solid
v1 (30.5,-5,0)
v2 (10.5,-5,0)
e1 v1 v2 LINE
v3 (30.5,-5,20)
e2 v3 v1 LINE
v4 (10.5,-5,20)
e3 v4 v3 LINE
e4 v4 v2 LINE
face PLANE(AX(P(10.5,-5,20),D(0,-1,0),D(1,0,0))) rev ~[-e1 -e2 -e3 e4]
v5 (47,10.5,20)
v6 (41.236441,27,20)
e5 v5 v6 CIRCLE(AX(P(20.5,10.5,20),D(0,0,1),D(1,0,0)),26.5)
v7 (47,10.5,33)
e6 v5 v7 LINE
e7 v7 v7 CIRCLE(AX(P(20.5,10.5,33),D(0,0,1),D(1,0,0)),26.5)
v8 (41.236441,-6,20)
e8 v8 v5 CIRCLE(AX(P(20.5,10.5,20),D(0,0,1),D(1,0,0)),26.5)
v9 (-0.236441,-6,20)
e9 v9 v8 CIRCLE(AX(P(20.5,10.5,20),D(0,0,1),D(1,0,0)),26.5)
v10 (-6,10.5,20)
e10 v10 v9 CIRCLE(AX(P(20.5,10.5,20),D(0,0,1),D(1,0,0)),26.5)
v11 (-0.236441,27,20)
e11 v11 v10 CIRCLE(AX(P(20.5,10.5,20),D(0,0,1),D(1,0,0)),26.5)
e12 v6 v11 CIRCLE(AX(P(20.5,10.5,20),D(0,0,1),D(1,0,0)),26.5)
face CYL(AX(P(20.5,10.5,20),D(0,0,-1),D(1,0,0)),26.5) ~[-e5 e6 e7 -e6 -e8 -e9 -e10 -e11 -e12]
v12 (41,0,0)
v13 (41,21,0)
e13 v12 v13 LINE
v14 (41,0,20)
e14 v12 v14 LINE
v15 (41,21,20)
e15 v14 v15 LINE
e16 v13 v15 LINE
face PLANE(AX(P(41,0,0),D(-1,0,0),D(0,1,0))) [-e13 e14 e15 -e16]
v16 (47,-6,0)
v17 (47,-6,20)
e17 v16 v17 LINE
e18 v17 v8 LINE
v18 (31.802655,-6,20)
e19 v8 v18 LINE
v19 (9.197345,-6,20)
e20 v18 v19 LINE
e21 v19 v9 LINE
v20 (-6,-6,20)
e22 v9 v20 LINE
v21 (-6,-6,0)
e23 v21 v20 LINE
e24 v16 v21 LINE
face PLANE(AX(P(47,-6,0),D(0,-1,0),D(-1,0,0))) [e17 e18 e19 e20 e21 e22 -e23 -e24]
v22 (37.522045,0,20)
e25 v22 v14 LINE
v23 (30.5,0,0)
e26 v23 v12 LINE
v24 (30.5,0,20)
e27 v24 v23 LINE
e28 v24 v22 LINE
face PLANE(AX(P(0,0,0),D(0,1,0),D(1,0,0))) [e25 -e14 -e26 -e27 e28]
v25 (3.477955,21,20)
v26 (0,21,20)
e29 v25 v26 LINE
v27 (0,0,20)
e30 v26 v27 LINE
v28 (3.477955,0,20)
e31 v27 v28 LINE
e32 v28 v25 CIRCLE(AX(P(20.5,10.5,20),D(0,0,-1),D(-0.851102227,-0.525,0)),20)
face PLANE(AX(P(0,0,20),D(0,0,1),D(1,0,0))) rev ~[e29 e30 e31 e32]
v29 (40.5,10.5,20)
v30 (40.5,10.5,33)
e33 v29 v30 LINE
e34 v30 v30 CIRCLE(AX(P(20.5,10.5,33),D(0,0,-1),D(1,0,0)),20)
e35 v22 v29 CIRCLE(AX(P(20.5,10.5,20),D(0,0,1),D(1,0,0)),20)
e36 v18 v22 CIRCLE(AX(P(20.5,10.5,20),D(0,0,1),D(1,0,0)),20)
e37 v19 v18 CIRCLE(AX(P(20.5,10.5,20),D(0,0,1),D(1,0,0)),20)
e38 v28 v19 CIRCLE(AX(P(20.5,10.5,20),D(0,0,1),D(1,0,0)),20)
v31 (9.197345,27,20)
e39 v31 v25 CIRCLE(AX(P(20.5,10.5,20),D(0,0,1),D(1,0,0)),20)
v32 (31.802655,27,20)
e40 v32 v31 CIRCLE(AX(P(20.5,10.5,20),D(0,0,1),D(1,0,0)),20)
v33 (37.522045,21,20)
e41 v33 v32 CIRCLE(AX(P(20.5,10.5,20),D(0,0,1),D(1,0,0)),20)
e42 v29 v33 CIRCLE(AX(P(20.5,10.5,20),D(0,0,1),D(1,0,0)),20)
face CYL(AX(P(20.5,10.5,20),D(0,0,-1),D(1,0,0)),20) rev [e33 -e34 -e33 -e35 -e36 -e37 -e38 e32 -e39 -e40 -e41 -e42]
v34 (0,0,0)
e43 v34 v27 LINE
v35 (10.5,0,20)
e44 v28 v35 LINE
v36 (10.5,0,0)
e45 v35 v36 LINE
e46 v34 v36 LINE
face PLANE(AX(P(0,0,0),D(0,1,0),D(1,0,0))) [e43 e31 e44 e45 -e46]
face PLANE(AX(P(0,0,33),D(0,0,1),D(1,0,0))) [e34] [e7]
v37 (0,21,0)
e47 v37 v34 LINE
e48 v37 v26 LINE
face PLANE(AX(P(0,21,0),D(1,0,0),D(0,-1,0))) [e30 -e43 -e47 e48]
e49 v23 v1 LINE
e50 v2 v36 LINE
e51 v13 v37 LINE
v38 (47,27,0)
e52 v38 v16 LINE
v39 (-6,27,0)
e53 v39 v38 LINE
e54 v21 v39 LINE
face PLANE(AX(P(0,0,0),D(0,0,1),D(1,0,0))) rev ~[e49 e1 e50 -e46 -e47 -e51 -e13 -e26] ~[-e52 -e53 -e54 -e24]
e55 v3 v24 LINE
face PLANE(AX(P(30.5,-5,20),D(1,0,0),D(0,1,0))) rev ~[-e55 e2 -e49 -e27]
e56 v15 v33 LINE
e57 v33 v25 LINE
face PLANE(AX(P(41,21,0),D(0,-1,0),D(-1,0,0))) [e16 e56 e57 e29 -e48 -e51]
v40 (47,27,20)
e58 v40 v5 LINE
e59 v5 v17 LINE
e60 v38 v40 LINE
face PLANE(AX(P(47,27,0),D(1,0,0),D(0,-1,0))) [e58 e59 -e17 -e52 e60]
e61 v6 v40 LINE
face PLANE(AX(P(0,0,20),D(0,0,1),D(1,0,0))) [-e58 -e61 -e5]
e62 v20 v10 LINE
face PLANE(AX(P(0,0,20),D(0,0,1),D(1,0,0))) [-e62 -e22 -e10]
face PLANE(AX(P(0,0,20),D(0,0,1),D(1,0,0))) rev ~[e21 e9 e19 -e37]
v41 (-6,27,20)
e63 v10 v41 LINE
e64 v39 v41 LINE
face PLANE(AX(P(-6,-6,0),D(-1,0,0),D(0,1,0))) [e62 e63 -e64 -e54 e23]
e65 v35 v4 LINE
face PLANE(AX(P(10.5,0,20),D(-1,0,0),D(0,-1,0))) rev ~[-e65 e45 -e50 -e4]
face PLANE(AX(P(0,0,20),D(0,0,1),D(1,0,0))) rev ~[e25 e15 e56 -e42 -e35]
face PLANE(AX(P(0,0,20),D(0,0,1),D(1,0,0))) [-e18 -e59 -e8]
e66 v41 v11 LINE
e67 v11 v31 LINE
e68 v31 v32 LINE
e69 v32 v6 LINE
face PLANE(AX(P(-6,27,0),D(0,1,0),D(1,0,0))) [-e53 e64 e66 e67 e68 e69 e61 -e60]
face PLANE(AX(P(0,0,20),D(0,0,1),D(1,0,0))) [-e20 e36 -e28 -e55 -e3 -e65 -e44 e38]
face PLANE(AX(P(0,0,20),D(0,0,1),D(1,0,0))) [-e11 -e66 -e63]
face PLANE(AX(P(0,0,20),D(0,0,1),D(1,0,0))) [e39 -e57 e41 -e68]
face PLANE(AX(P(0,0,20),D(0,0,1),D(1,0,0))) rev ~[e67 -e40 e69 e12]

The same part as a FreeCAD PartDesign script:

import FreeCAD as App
import Part
import Sketcher
Q = App.Units.Quantity

doc = App.newDocument("Part")
params = doc.addObject("Spreadsheet::Sheet", "Params")
for row, (alias, value) in enumerate([
    ("sketch1_width", "41 mm"),
    ("sketch1_height", "21 mm"),
    ("pad1_length", "20 mm"),
    ("sketch2_width", "20 mm"),
    ("sketch2_height", "5 mm"),
    ("sketch3_diameter", "40 mm"),
    ("sketch3_diameter2", "53 mm"),
    ("pad2_length", "13 mm"),
], start=1):
    params.set(f"A{row}", alias)
    params.set(f"B{row}", "=" + value)
    params.setAlias(f"B{row}", alias)

body = doc.addObject("PartDesign::Body", "Body")

# Sketch on XY plane
sketch1 = body.newObject("Sketcher::SketchObject", "Sketch")
sketch1.AttachmentSupport = (doc.getObject("XY_Plane"), [""])
sketch1.MapMode = "FlatFace"
sketch1.addGeometry(Part.LineSegment(App.Vector(47, 27, 0), App.Vector(-6, 27, 0)), False)
sketch1.addGeometry(Part.LineSegment(App.Vector(-6, 27, 0), App.Vector(-6, -6, 0)), False)
sketch1.addGeometry(Part.LineSegment(App.Vector(-6, -6, 0), App.Vector(47, -6, 0)), False)
sketch1.addGeometry(Part.LineSegment(App.Vector(47, -6, 0), App.Vector(47, 27, 0)), False)
sketch1.addGeometry(Part.LineSegment(App.Vector(41, 0, 0), App.Vector(0, 0, 0)), False)
sketch1.addGeometry(Part.LineSegment(App.Vector(0, 0, 0), App.Vector(0, 21, 0)), False)
sketch1.addGeometry(Part.LineSegment(App.Vector(0, 21, 0), App.Vector(41, 21, 0)), False)
sketch1.addGeometry(Part.LineSegment(App.Vector(41, 21, 0), App.Vector(41, 0, 0)), False)
sketch1.addConstraint(Sketcher.Constraint("Coincident", 0, 2, 1, 1))
sketch1.addConstraint(Sketcher.Constraint("Coincident", 1, 2, 2, 1))
sketch1.addConstraint(Sketcher.Constraint("Coincident", 2, 2, 3, 1))
sketch1.addConstraint(Sketcher.Constraint("Coincident", 3, 2, 0, 1))
sketch1.addConstraint(Sketcher.Constraint("Coincident", 4, 2, 5, 1))
sketch1.addConstraint(Sketcher.Constraint("Coincident", 5, 2, 6, 1))
sketch1.addConstraint(Sketcher.Constraint("Coincident", 6, 2, 7, 1))
sketch1.addConstraint(Sketcher.Constraint("Coincident", 7, 2, 4, 1))
sketch1.addConstraint(Sketcher.Constraint("Horizontal", 0))
sketch1.addConstraint(Sketcher.Constraint("Vertical", 1))
sketch1.addConstraint(Sketcher.Constraint("Horizontal", 2))
sketch1.addConstraint(Sketcher.Constraint("Vertical", 3))
sketch1.addConstraint(Sketcher.Constraint("Horizontal", 4))
sketch1.addConstraint(Sketcher.Constraint("Vertical", 5))
sketch1.addConstraint(Sketcher.Constraint("Horizontal", 6))
sketch1.addConstraint(Sketcher.Constraint("Vertical", 7))
sketch1.addConstraint(Sketcher.Constraint("Coincident", 4, 2, -1, 1))
sketch1.addConstraint(Sketcher.Constraint("DistanceX", 4, 2, 4, 1, Q("41 mm")))
sketch1.addConstraint(Sketcher.Constraint("DistanceY", 5, 1, 5, 2, Q("21 mm")))
sketch1.addConstraint(Sketcher.Constraint("DistanceX", 0, 2, -1, 1, Q("6 mm")))
sketch1.addConstraint(Sketcher.Constraint("DistanceY", 1, 2, -1, 1, Q("6 mm")))
sketch1.addConstraint(Sketcher.Constraint("DistanceY", 5, 2, 0, 2, Q("6 mm")))
sketch1.addConstraint(Sketcher.Constraint("DistanceX", 6, 2, 3, 2, Q("6 mm")))
sketch1.setExpression("Constraints[17]", "Params.sketch1_width")
sketch1.setExpression("Constraints[18]", "Params.sketch1_height")
pad1 = body.newObject("PartDesign::Pad", "Pad")
pad1.Profile = sketch1
pad1.setExpression("Length", "Params.pad1_length")

# Sketch on XY plane
sketch2 = body.newObject("Sketcher::SketchObject", "Sketch001")
sketch2.AttachmentSupport = (doc.getObject("XY_Plane"), [""])
sketch2.MapMode = "FlatFace"
sketch2.AttachmentOffset = App.Placement(App.Vector(0, 0, 20), App.Rotation())
sketch2.addGeometry(Part.LineSegment(App.Vector(30, -5, 0), App.Vector(30, 0, 0)), False)
sketch2.addGeometry(Part.LineSegment(App.Vector(30, 0, 0), App.Vector(10, 0, 0)), False)
sketch2.addGeometry(Part.LineSegment(App.Vector(10, 0, 0), App.Vector(10, -5, 0)), False)
sketch2.addGeometry(Part.LineSegment(App.Vector(10, -5, 0), App.Vector(30, -5, 0)), False)
sketch2.addConstraint(Sketcher.Constraint("Coincident", 0, 2, 1, 1))
sketch2.addConstraint(Sketcher.Constraint("Coincident", 1, 2, 2, 1))
sketch2.addConstraint(Sketcher.Constraint("Coincident", 2, 2, 3, 1))
sketch2.addConstraint(Sketcher.Constraint("Coincident", 3, 2, 0, 1))
sketch2.addConstraint(Sketcher.Constraint("Vertical", 0))
sketch2.addConstraint(Sketcher.Constraint("Horizontal", 1))
sketch2.addConstraint(Sketcher.Constraint("Vertical", 2))
sketch2.addConstraint(Sketcher.Constraint("Horizontal", 3))
sketch2.addConstraint(Sketcher.Constraint("PointOnObject", 0, 2, -1))
sketch2.addConstraint(Sketcher.Constraint("DistanceX", 1, 2, 1, 1, Q("20 mm")))
sketch2.addConstraint(Sketcher.Constraint("DistanceY", 0, 1, 0, 2, Q("5 mm")))
sketch2.addConstraint(Sketcher.Constraint("DistanceX", -1, 1, 0, 2, Q("30.5 mm")))
sketch2.setExpression("Constraints[9]", "Params.sketch2_width")
sketch2.setExpression("Constraints[10]", "Params.sketch2_height")
pocket1 = body.newObject("PartDesign::Pocket", "Pocket")
pocket1.Profile = sketch2
pocket1.Type = "UpToFirst"

# Sketch on XY plane
sketch3 = body.newObject("Sketcher::SketchObject", "Sketch002")
sketch3.AttachmentSupport = (doc.getObject("XY_Plane"), [""])
sketch3.MapMode = "FlatFace"
sketch3.AttachmentOffset = App.Placement(App.Vector(0, 0, 20), App.Rotation())
sketch3.addGeometry(Part.Circle(App.Vector(20, 10, 0), App.Vector(0, 0, 1), 26), False)
sketch3.addGeometry(Part.Circle(App.Vector(20, 10, 0), App.Vector(0, 0, 1), 20), False)
sketch3.addConstraint(Sketcher.Constraint("Coincident", 1, 3, 0, 3))
sketch3.addConstraint(Sketcher.Constraint("Diameter", 1, Q("40 mm")))
sketch3.addConstraint(Sketcher.Constraint("Diameter", 0, Q("53 mm")))
sketch3.addConstraint(Sketcher.Constraint("DistanceX", -1, 1, 0, 3, Q("20.5 mm")))
sketch3.addConstraint(Sketcher.Constraint("DistanceY", -1, 1, 0, 3, Q("10.5 mm")))
sketch3.setExpression("Constraints[1]", "Params.sketch3_diameter")
sketch3.setExpression("Constraints[2]", "Params.sketch3_diameter2")
pad2 = body.newObject("PartDesign::Pad", "Pad001")
pad2.Profile = sketch3
pad2.setExpression("Length", "Params.pad2_length")

doc.recompute()
